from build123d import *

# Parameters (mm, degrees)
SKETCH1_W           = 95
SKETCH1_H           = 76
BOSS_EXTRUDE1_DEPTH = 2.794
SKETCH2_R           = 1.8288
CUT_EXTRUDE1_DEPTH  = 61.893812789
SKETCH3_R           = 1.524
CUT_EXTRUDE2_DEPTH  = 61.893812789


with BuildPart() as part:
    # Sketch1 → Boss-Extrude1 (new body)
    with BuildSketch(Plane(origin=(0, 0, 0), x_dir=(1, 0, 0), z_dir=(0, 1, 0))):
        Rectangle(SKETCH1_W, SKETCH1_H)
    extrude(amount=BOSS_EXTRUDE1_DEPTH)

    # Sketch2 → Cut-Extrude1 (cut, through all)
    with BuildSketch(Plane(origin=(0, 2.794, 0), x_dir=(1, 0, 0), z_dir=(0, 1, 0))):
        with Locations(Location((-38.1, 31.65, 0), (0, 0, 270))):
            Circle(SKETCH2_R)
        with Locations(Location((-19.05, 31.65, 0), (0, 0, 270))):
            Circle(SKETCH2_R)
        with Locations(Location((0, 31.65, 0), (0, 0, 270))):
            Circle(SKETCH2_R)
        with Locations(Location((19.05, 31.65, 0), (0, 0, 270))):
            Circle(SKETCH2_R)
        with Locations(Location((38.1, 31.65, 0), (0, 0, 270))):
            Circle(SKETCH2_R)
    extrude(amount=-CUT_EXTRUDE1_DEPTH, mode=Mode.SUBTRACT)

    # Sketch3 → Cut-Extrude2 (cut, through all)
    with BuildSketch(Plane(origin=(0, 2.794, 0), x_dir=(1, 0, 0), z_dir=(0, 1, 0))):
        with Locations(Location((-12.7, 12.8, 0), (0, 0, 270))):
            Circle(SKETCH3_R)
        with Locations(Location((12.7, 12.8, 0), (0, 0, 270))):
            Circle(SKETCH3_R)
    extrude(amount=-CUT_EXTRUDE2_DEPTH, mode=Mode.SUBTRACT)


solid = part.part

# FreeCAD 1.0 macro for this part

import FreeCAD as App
import Part
import Sketcher
Q = App.Units.Quantity


def add_polygon(sketch, points):
    """Adds a closed chain of lines whose ends are joined by coincident constraints."""
    first, n = sketch.GeometryCount, len(points)
    for a, b in zip(points, points[1:] + points[:1]):
        sketch.addGeometry(Part.LineSegment(App.Vector(*a, 0), App.Vector(*b, 0)), False)
    for i in range(n):
        sketch.addConstraint(Sketcher.Constraint("Coincident", first + i, 2, first + (i + 1) % n, 1))

doc = App.newDocument("Part")
params = doc.addObject("Spreadsheet::Sheet", "Params")
for row, (alias, value) in enumerate([
    ("pad1_length", "0.11 in"),
    ("sketch2_diameter", "0.144 in"),
    ("sketch3_diameter", "0.12 in"),
], start=1):
    params.set(f"A{row}", alias)
    params.set(f"B{row}", "=" + value)
    params.setAlias(f"B{row}", alias)

body = doc.addObject("PartDesign::Body", "Body")

sketch1 = body.newObject("Sketcher::SketchObject", "Sketch")
sketch1.AttachmentSupport = (doc.getObject("XZ_Plane"), [""])
sketch1.MapMode = "FlatFace"
add_polygon(sketch1, [(-48, -38), (-48, 38), (48, 38), (48, -38)])
sketch1.addConstraint([
    Sketcher.Constraint("Vertical", 0),
    Sketcher.Constraint("Horizontal", 1),
    Sketcher.Constraint("Vertical", 2),
    Sketcher.Constraint("Horizontal", 3),
    Sketcher.Constraint("Symmetric", 0, 2, 2, 2, -1, 1),
    Sketcher.Constraint("DistanceX", 1, 1, 1, 2, Q("95 mm")),
    Sketcher.Constraint("DistanceY", 0, 1, 0, 2, Q("76 mm")),
])
pad1 = body.newObject("PartDesign::Pad", "Pad")
pad1.Profile = sketch1
pad1.setExpression("Length", "Params.pad1_length")
pad1.Reversed = True

sketch2 = body.newObject("Sketcher::SketchObject", "Sketch001")
sketch2.AttachmentSupport = (doc.getObject("XZ_Plane"), [""])
sketch2.MapMode = "FlatFace"
sketch2.AttachmentOffset = App.Placement(App.Vector(0, 0, -0.11 * 25.4), App.Rotation())
sketch2.addGeometry([
    Part.Circle(App.Vector(-38.1, -31.6, 0), App.Vector(0, 0, 1), 1.8),
    Part.Circle(App.Vector(-19.1, -31.6, 0), App.Vector(0, 0, 1), 1.8),
    Part.Circle(App.Vector(0, -31.6, 0), App.Vector(0, 0, 1), 1.8),
    Part.Circle(App.Vector(19.1, -31.6, 0), App.Vector(0, 0, 1), 1.8),
    Part.Circle(App.Vector(38.1, -31.6, 0), App.Vector(0, 0, 1), 1.8),
], False)
sketch2.addConstraint([
    Sketcher.Constraint("Equal", 0, 1),
    Sketcher.Constraint("Equal", 1, 2),
    Sketcher.Constraint("Equal", 2, 3),
    Sketcher.Constraint("Equal", 3, 4),
    Sketcher.Constraint("Symmetric", 1, 3, 3, 3, -2),
    Sketcher.Constraint("Symmetric", 0, 3, 4, 3, -2),
    Sketcher.Constraint("PointOnObject", 2, 3, -2),
    Sketcher.Constraint("Horizontal", 0, 3, 1, 3),
    Sketcher.Constraint("Horizontal", 1, 3, 2, 3),
    Sketcher.Constraint("Diameter", 0, Q("0.144 in")),
    Sketcher.Constraint("DistanceX", 0, 3, 4, 3, Q("3 in")),
    Sketcher.Constraint("DistanceX", 1, 3, 3, 3, Q("1.5 in")),
    Sketcher.Constraint("DistanceY", 0, 3, -1, 1, Q("31.65 mm")),
])
sketch2.setExpression("Constraints[9]", "Params.sketch2_diameter")
pocket1 = body.newObject("PartDesign::Pocket", "Pocket")
pocket1.Profile = sketch2
pocket1.Type = "ThroughAll"
pocket1.Reversed = True

sketch3 = body.newObject("Sketcher::SketchObject", "Sketch002")
sketch3.AttachmentSupport = (doc.getObject("XZ_Plane"), [""])
sketch3.MapMode = "FlatFace"
sketch3.AttachmentOffset = App.Placement(App.Vector(0, 0, -0.11 * 25.4), App.Rotation())
sketch3.addGeometry([
    Part.Circle(App.Vector(-12.7, -12.8, 0), App.Vector(0, 0, 1), 1.5),
    Part.Circle(App.Vector(12.7, -12.8, 0), App.Vector(0, 0, 1), 1.5),
], False)
sketch3.addConstraint([
    Sketcher.Constraint("Equal", 0, 1),
    Sketcher.Constraint("Symmetric", 0, 3, 1, 3, -2),
    Sketcher.Constraint("Diameter", 0, Q("0.12 in")),
    Sketcher.Constraint("DistanceX", 0, 3, 1, 3, Q("1 in")),
    Sketcher.Constraint("DistanceY", 0, 3, -1, 1, Q("12.8 mm")),
])
sketch3.setExpression("Constraints[2]", "Params.sketch3_diameter")
pocket2 = body.newObject("PartDesign::Pocket", "Pocket001")
pocket2.Profile = sketch3
pocket2.Type = "ThroughAll"
pocket2.Reversed = True

doc.recompute()
